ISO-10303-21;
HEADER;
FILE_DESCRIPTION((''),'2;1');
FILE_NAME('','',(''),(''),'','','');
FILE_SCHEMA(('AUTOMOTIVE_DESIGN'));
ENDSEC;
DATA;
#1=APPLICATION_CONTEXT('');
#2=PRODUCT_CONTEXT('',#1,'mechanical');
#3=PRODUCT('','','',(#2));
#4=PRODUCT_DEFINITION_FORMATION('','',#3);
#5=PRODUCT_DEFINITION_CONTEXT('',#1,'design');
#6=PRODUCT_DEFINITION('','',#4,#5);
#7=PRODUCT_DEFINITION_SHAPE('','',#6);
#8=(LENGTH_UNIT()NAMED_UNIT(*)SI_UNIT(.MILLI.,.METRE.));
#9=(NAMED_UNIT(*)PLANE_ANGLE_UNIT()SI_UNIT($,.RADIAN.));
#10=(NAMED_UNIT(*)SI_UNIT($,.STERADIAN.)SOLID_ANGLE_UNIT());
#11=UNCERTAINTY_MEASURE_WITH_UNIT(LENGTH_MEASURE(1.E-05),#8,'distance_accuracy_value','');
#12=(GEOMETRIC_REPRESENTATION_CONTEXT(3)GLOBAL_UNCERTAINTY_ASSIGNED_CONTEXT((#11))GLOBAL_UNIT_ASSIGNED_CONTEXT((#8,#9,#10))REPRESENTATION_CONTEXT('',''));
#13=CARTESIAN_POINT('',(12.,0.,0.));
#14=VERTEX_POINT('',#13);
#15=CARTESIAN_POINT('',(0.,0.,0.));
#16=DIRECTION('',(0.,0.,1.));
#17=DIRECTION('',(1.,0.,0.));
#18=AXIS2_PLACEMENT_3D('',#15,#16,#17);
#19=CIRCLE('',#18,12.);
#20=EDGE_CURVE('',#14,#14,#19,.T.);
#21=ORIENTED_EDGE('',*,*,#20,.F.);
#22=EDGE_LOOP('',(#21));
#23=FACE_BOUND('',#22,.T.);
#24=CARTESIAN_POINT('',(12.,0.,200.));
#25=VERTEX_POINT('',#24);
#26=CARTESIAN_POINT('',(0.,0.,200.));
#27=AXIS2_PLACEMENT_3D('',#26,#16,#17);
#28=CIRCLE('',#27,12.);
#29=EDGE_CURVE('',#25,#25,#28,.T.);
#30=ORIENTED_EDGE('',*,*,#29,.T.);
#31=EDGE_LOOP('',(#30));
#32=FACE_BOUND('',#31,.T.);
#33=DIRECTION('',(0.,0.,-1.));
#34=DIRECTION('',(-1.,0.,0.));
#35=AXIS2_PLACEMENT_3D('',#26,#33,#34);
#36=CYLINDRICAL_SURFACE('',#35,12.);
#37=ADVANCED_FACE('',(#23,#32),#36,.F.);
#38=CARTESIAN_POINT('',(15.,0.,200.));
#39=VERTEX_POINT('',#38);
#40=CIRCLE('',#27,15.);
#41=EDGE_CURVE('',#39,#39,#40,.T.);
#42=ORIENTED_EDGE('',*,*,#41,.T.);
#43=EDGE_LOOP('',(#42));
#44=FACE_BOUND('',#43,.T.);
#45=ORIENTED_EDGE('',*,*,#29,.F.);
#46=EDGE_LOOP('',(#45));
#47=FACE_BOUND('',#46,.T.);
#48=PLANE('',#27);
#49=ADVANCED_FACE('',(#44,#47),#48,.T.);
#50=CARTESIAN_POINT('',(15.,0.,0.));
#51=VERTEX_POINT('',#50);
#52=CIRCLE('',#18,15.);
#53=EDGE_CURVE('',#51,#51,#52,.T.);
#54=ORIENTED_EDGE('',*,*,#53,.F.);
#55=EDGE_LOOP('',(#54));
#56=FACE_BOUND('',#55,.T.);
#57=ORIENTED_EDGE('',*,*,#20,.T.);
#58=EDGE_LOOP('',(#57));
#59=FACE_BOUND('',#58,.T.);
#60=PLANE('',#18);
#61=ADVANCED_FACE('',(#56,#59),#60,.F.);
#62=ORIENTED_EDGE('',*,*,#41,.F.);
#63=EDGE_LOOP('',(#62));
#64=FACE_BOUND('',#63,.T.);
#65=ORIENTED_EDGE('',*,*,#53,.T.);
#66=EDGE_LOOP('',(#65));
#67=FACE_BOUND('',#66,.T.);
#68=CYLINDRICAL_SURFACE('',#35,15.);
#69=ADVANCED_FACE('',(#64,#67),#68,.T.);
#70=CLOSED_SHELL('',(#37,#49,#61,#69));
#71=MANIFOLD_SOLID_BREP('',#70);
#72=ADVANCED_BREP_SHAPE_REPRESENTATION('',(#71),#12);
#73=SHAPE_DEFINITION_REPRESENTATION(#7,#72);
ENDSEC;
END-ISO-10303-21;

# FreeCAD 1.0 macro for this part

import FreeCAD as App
import Part
import Sketcher
Q = App.Units.Quantity

doc = App.newDocument("Part")
body = doc.addObject("PartDesign::Body", "Body")

sketch1 = body.newObject("Sketcher::SketchObject", "Sketch")
sketch1.AttachmentSupport = (doc.getObject("XY_Plane"), [""])
sketch1.MapMode = "FlatFace"
sketch1.addGeometry([
    Part.Circle(App.Vector(0, 0, 0), App.Vector(0, 0, 1), 15),
    Part.Circle(App.Vector(0, 0, 0), App.Vector(0, 0, 1), 12),
], False)
sketch1.addConstraint([
    Sketcher.Constraint("Coincident", 0, 3, -1, 1),
    Sketcher.Constraint("Coincident", 1, 3, -1, 1),
    Sketcher.Constraint("Diameter", 0, Q("30 mm")),
    Sketcher.Constraint("Diameter", 1, Q("24 mm")),
])
pad1 = body.newObject("PartDesign::Pad", "Pad")
pad1.Profile = sketch1
pad1.Length = 200

doc.recompute()
